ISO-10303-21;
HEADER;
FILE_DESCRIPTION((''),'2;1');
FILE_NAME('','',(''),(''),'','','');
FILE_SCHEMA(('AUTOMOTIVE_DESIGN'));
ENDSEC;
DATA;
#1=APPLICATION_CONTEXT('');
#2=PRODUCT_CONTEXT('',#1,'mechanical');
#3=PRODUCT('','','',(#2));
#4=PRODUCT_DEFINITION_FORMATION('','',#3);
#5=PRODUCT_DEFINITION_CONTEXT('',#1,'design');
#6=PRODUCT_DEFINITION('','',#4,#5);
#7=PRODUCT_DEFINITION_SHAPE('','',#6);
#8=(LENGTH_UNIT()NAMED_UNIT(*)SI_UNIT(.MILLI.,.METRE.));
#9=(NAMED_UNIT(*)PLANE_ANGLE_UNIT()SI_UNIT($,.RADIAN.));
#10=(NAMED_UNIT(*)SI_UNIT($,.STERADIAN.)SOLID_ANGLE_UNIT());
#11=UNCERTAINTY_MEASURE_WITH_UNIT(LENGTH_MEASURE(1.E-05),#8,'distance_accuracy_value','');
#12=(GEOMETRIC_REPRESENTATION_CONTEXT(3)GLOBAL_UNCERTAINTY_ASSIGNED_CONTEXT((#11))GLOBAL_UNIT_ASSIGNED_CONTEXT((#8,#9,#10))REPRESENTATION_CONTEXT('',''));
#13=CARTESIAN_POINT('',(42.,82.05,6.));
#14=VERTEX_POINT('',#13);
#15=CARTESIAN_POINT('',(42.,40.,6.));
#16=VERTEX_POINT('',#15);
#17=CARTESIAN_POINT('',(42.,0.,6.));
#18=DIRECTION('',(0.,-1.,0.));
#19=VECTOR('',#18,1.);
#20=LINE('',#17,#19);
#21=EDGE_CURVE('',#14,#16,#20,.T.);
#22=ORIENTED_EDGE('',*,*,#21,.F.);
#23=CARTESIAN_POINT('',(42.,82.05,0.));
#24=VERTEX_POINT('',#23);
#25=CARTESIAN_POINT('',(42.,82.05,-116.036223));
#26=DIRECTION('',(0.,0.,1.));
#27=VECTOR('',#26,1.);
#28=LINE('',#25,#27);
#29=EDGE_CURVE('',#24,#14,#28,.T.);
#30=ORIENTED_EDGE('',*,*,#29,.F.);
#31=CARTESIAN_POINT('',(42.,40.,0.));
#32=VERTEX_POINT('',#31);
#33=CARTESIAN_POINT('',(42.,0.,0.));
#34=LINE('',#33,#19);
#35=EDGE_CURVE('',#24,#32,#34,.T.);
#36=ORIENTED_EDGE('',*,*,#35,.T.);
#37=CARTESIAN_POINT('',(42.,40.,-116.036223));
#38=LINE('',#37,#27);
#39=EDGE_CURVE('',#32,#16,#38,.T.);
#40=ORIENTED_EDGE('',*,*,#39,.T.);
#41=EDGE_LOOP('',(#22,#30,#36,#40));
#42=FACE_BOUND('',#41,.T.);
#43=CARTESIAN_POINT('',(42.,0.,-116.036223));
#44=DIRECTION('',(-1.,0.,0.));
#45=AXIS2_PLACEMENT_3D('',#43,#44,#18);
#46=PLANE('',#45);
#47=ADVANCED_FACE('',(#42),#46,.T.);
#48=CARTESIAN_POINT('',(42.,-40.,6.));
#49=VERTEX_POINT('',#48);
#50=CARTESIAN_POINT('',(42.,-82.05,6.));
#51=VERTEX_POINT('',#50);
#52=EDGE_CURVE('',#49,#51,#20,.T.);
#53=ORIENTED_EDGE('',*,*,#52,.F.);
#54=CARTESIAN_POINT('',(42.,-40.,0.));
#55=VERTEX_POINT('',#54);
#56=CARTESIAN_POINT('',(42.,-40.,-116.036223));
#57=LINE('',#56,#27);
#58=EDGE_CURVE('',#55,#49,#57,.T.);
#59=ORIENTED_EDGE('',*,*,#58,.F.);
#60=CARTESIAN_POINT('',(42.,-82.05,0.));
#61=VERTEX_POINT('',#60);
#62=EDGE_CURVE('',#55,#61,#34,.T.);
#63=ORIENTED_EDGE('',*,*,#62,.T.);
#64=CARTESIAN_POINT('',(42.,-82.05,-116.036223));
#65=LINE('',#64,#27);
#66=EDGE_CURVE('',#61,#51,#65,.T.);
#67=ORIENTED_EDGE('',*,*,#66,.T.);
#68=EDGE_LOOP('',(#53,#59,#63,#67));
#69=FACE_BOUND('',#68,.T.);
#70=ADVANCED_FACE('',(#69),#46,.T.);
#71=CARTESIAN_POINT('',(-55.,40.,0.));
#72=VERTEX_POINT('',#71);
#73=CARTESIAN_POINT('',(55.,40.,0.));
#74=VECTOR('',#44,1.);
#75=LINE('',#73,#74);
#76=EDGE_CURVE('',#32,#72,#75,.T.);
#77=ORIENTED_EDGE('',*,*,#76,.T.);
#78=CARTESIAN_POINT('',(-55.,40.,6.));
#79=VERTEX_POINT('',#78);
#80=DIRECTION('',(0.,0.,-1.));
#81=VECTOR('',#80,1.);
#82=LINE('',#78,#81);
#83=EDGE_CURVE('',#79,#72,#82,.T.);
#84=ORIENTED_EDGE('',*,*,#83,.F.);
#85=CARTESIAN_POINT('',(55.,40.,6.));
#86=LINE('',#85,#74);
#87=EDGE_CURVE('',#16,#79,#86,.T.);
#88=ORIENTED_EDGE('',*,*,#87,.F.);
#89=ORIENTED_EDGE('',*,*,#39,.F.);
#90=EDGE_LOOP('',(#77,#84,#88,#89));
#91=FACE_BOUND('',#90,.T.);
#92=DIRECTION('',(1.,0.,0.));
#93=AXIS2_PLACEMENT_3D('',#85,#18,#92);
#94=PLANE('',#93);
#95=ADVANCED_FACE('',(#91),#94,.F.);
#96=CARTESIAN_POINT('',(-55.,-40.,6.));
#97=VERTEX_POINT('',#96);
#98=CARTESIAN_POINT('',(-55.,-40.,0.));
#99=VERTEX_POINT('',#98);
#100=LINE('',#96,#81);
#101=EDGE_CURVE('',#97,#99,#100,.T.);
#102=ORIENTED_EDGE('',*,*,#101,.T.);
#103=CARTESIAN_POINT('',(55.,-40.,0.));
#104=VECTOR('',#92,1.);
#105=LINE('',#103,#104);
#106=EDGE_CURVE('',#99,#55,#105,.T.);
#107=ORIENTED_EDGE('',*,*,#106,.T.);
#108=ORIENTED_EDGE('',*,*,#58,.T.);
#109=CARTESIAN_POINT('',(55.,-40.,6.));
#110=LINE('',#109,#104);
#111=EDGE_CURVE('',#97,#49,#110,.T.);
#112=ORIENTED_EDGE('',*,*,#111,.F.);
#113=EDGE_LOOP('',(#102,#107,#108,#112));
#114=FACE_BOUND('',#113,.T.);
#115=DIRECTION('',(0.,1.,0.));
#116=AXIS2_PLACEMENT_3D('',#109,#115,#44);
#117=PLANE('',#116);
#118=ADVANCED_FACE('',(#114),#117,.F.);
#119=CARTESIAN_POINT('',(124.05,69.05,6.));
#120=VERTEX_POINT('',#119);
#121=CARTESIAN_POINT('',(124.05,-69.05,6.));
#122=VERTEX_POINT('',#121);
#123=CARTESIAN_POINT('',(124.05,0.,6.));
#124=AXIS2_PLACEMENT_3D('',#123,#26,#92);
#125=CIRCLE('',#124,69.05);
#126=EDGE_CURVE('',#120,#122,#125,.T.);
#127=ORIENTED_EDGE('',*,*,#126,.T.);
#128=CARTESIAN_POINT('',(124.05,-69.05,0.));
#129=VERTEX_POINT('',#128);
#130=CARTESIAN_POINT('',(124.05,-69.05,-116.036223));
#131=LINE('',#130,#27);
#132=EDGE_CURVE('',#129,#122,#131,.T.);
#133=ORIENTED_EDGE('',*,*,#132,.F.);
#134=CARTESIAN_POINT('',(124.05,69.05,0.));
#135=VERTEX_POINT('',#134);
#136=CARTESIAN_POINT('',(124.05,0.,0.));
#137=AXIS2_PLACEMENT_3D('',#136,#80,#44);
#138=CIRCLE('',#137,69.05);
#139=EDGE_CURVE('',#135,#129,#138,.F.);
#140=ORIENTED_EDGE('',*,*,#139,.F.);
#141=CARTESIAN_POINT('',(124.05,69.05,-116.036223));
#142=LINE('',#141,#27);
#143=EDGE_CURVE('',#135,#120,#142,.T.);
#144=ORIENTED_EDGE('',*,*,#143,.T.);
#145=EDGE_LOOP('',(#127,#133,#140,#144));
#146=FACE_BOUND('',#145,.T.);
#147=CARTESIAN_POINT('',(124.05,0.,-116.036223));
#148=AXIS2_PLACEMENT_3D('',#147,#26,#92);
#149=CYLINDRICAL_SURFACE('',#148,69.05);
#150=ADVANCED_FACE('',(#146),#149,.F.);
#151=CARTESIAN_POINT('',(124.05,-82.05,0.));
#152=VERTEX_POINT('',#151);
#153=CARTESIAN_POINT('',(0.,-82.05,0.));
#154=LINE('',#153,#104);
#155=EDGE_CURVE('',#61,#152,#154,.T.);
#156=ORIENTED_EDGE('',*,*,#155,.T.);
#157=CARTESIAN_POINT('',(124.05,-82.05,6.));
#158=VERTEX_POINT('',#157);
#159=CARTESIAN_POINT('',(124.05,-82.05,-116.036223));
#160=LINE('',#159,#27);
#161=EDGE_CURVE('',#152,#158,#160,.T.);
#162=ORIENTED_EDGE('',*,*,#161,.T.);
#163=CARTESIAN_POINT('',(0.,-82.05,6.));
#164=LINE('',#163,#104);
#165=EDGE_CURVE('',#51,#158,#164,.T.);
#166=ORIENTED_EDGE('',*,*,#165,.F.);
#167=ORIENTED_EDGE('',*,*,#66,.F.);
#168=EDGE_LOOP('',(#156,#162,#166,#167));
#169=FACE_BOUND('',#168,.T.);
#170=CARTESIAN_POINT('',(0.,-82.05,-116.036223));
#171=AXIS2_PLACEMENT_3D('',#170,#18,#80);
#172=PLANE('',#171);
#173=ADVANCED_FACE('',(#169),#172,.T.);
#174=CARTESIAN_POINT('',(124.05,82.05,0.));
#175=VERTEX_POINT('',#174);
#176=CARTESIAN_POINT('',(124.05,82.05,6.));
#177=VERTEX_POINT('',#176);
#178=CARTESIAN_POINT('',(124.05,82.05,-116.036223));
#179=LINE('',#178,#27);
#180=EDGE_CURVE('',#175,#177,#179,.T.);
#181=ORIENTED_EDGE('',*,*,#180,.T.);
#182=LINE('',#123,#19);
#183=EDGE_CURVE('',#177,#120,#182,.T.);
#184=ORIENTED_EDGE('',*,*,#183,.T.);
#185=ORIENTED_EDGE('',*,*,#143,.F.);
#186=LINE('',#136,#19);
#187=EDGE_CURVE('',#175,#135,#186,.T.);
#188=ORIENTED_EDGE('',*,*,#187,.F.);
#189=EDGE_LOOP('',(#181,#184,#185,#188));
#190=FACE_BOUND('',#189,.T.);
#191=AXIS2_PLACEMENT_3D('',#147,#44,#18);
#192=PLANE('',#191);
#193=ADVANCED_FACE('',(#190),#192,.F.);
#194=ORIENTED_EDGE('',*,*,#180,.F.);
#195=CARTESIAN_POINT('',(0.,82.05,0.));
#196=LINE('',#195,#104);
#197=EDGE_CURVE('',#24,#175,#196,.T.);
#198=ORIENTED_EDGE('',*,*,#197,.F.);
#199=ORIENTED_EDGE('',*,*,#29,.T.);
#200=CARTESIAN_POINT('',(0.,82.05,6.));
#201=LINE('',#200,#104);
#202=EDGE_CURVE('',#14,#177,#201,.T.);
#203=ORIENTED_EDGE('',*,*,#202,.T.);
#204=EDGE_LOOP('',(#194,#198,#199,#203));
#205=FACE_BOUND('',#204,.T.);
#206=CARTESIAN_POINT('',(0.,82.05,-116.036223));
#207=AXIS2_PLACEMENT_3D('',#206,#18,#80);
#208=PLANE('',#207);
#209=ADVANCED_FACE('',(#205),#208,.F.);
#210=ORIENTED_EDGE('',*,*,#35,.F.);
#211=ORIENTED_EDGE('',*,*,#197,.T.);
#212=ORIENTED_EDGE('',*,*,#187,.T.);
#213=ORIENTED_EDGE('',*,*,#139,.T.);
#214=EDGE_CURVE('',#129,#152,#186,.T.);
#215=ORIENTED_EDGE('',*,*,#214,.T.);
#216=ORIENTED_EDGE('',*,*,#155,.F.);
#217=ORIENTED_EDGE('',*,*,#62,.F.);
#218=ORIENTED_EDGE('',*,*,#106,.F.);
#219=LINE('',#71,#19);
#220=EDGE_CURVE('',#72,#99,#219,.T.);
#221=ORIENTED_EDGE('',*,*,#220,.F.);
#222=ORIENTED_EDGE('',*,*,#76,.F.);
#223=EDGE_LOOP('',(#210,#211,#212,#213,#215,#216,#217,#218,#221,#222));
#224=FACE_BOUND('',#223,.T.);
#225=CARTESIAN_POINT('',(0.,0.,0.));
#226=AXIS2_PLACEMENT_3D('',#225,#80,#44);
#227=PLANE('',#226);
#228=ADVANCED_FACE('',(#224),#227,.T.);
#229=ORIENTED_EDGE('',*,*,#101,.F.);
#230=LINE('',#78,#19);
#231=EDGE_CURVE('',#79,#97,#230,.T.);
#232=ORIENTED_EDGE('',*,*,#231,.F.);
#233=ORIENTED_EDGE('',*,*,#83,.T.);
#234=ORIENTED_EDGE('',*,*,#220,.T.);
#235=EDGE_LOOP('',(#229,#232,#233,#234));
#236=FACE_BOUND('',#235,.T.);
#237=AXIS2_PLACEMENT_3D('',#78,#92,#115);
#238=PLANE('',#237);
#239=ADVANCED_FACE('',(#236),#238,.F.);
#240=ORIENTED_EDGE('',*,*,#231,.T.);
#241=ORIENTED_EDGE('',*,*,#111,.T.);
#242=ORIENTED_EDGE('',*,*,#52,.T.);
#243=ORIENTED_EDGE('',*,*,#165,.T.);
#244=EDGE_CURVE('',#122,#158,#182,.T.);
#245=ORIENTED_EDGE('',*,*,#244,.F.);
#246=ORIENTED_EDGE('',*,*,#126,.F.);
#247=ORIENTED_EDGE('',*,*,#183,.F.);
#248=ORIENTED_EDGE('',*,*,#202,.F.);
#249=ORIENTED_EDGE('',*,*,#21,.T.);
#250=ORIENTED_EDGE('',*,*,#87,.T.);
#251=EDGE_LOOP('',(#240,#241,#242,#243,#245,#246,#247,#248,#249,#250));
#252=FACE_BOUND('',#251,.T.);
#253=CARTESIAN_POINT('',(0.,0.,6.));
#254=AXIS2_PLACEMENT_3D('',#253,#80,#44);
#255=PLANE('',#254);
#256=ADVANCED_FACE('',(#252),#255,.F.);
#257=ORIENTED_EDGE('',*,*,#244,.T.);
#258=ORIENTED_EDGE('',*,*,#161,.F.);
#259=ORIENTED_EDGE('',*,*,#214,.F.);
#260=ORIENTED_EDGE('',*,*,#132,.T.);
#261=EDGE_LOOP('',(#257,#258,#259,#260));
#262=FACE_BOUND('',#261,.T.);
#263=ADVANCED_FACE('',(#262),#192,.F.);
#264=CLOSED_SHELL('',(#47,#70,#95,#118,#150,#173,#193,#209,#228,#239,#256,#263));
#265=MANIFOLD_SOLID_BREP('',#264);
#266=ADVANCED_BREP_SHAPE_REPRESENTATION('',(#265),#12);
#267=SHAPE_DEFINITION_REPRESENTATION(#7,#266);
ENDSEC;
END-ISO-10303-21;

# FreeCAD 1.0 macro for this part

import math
import FreeCAD as App
import Part
import Sketcher

V = App.Vector


def add_polygon(sketch, points):
    """Adds a closed chain of lines whose ends are joined by coincident constraints."""
    first, n = sketch.GeometryCount, len(points)
    for a, b in zip(points, points[1:] + points[:1]):
        sketch.addGeometry(Part.LineSegment(App.Vector(*a, 0), App.Vector(*b, 0)), False)
    for i in range(n):
        sketch.addConstraint(Sketcher.Constraint("Coincident", first + i, 2, first + (i + 1) % n, 1))

doc = App.newDocument("Part")
params = doc.addObject("Spreadsheet::Sheet", "Params")
for row, (alias, value) in enumerate([
    ("sketch1_width", "110 mm"),
    ("sketch1_height", "80 mm"),
    ("pad1_length", "6 mm"),
    ("sketch2_height", "13 mm"),
    ("sketch2_radius", "69.05 mm"),
    ("sketch2_width", "82.05 mm"),
    ("pad2_length", "6 mm"),
], start=1):
    params.set(f"A{row}", alias)
    params.set(f"B{row}", "=" + value)
    params.setAlias(f"B{row}", alias)

body = doc.addObject("PartDesign::Body", "Body")

# Sketch on XY plane
sketch1 = body.newObject("Sketcher::SketchObject", "Sketch")
sketch1.AttachmentSupport = (doc.getObject("XY_Plane"), [""])
sketch1.MapMode = "FlatFace"
add_polygon(sketch1, [(-55, 40), (-55, -40), (55, -40), (55, 40)])  # lines 0-3
sketch1.addConstraint([
    Sketcher.Constraint("Vertical", 0),
    Sketcher.Constraint("Horizontal", 1),
    Sketcher.Constraint("Vertical", 2),
    Sketcher.Constraint("Horizontal", 3),
    Sketcher.Constraint("Symmetric", 0, 2, 2, 2, -1, 1),
    Sketcher.Constraint("DistanceX", 1, 1, 1, 2, 110.0),
    Sketcher.Constraint("DistanceY", 0, 2, 0, 1, 80.0),
])
sketch1.setExpression("Constraints[9]", "Params.sketch1_width")
sketch1.setExpression("Constraints[10]", "Params.sketch1_height")
pad1 = body.newObject("PartDesign::Pad", "Pad")
pad1.Profile = sketch1
pad1.setExpression("Length", "Params.pad1_length")

# Sketch on XY plane
sketch2 = body.newObject("Sketcher::SketchObject", "Sketch001")
sketch2.AttachmentSupport = (doc.getObject("XY_Plane"), [""])
sketch2.MapMode = "FlatFace"
sketch2.AttachmentOffset = App.Placement(V(0, 0, 6), App.Rotation())
sketch2.addGeometry([
    Part.LineSegment(V(124, 82, 0), V(42, 82, 0)),  # 0
    Part.LineSegment(V(42, 82, 0), V(42, -82, 0)),  # 1
    Part.LineSegment(V(42, -82, 0), V(124, -82, 0)),  # 2
    Part.LineSegment(V(124, -82, 0), V(124, -69, 0)),  # 3
    Part.ArcOfCircle(Part.Circle(V(124, 0, 0), V(0, 0, 1), 69), math.radians(90), math.radians(270)),  # 4
    Part.LineSegment(V(124, 69, 0), V(124, 82, 0)),  # 5
], False)
sketch2.addConstraint([
    Sketcher.Constraint("Coincident", 0, 2, 1, 1),
    Sketcher.Constraint("Coincident", 1, 2, 2, 1),
    Sketcher.Constraint("Coincident", 2, 2, 3, 1),
    Sketcher.Constraint("Coincident", 3, 2, 4, 2),
    Sketcher.Constraint("Coincident", 4, 1, 5, 1),
    Sketcher.Constraint("Coincident", 5, 2, 0, 1),
    Sketcher.Constraint("Horizontal", 0),
    Sketcher.Constraint("Vertical", 1),
    Sketcher.Constraint("Horizontal", 2),
    Sketcher.Constraint("Vertical", 3),
    Sketcher.Constraint("Vertical", 5),
    Sketcher.Constraint("Symmetric", 3, 2, 4, 1, -1),
    Sketcher.Constraint("Vertical", 4, 3, 2, 2),
    Sketcher.Constraint("Equal", 3, 5),
    Sketcher.Constraint("DistanceY", 3, 1, 3, 2, 13.0),
    Sketcher.Constraint("Radius", 4, 69.05),
    Sketcher.Constraint("DistanceX", -1, 1, 0, 2, 42.0),
    Sketcher.Constraint("DistanceX", 0, 2, 0, 1, 82.05),
])
sketch2.setExpression("Constraints[14]", "Params.sketch2_height")
sketch2.setExpression("Constraints[15]", "Params.sketch2_radius")
sketch2.setExpression("Constraints[17]", "Params.sketch2_width")
pad2 = body.newObject("PartDesign::Pad", "Pad001")
pad2.Profile = sketch2
pad2.setExpression("Length", "Params.pad2_length")
pad2.Reversed = True

doc.recompute()
